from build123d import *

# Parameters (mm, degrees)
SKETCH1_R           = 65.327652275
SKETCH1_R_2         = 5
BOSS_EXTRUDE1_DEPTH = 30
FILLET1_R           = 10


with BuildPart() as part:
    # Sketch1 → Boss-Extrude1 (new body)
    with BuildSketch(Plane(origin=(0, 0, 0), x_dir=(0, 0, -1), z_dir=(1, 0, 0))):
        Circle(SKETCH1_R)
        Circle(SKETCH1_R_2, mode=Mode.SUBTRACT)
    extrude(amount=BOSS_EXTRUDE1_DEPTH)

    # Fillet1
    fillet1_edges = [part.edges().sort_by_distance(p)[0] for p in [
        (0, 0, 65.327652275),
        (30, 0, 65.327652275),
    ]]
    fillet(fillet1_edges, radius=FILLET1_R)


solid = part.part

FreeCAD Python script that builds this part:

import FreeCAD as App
import Part
import Sketcher

V = App.Vector


def edges_at(feature, points):
    """Names of the edges that pass closest to the given points."""
    edges = feature.Shape.Edges
    near = lambda p: min(range(len(edges)), key=lambda i: edges[i].distToShape(Part.Vertex(*p))[0])
    return sorted({f"Edge{near(p) + 1}" for p in points})

doc = App.newDocument("Part")
body = doc.addObject("PartDesign::Body", "Body")

sketch1 = body.newObject("Sketcher::SketchObject", "Sketch")
sketch1.AttachmentSupport = (doc.getObject("YZ_Plane"), [""])
sketch1.MapMode = "FlatFace"
sketch1.addGeometry([
    Part.Circle(V(0, 0, 0), V(0, 0, 1), 65),
    Part.Circle(V(0, 0, 0), V(0, 0, 1), 5),
], False)
sketch1.addConstraint([
    Sketcher.Constraint("Coincident", 0, 3, -1, 1),
    Sketcher.Constraint("Coincident", 1, 3, -1, 1),
    Sketcher.Constraint("Diameter", 1, 10.0),
    Sketcher.Constraint("Diameter", 0, 130.655305),
])
pad1 = body.newObject("PartDesign::Pad", "Pad")
pad1.Profile = sketch1
pad1.Length = 30
doc.recompute()

fillet = body.newObject("PartDesign::Fillet", "Fillet")
fillet.Base = (pad1, edges_at(pad1, [(0, 0, 65.328), (30, 0, 65.328)]))
fillet.Radius = 10

doc.recompute()
